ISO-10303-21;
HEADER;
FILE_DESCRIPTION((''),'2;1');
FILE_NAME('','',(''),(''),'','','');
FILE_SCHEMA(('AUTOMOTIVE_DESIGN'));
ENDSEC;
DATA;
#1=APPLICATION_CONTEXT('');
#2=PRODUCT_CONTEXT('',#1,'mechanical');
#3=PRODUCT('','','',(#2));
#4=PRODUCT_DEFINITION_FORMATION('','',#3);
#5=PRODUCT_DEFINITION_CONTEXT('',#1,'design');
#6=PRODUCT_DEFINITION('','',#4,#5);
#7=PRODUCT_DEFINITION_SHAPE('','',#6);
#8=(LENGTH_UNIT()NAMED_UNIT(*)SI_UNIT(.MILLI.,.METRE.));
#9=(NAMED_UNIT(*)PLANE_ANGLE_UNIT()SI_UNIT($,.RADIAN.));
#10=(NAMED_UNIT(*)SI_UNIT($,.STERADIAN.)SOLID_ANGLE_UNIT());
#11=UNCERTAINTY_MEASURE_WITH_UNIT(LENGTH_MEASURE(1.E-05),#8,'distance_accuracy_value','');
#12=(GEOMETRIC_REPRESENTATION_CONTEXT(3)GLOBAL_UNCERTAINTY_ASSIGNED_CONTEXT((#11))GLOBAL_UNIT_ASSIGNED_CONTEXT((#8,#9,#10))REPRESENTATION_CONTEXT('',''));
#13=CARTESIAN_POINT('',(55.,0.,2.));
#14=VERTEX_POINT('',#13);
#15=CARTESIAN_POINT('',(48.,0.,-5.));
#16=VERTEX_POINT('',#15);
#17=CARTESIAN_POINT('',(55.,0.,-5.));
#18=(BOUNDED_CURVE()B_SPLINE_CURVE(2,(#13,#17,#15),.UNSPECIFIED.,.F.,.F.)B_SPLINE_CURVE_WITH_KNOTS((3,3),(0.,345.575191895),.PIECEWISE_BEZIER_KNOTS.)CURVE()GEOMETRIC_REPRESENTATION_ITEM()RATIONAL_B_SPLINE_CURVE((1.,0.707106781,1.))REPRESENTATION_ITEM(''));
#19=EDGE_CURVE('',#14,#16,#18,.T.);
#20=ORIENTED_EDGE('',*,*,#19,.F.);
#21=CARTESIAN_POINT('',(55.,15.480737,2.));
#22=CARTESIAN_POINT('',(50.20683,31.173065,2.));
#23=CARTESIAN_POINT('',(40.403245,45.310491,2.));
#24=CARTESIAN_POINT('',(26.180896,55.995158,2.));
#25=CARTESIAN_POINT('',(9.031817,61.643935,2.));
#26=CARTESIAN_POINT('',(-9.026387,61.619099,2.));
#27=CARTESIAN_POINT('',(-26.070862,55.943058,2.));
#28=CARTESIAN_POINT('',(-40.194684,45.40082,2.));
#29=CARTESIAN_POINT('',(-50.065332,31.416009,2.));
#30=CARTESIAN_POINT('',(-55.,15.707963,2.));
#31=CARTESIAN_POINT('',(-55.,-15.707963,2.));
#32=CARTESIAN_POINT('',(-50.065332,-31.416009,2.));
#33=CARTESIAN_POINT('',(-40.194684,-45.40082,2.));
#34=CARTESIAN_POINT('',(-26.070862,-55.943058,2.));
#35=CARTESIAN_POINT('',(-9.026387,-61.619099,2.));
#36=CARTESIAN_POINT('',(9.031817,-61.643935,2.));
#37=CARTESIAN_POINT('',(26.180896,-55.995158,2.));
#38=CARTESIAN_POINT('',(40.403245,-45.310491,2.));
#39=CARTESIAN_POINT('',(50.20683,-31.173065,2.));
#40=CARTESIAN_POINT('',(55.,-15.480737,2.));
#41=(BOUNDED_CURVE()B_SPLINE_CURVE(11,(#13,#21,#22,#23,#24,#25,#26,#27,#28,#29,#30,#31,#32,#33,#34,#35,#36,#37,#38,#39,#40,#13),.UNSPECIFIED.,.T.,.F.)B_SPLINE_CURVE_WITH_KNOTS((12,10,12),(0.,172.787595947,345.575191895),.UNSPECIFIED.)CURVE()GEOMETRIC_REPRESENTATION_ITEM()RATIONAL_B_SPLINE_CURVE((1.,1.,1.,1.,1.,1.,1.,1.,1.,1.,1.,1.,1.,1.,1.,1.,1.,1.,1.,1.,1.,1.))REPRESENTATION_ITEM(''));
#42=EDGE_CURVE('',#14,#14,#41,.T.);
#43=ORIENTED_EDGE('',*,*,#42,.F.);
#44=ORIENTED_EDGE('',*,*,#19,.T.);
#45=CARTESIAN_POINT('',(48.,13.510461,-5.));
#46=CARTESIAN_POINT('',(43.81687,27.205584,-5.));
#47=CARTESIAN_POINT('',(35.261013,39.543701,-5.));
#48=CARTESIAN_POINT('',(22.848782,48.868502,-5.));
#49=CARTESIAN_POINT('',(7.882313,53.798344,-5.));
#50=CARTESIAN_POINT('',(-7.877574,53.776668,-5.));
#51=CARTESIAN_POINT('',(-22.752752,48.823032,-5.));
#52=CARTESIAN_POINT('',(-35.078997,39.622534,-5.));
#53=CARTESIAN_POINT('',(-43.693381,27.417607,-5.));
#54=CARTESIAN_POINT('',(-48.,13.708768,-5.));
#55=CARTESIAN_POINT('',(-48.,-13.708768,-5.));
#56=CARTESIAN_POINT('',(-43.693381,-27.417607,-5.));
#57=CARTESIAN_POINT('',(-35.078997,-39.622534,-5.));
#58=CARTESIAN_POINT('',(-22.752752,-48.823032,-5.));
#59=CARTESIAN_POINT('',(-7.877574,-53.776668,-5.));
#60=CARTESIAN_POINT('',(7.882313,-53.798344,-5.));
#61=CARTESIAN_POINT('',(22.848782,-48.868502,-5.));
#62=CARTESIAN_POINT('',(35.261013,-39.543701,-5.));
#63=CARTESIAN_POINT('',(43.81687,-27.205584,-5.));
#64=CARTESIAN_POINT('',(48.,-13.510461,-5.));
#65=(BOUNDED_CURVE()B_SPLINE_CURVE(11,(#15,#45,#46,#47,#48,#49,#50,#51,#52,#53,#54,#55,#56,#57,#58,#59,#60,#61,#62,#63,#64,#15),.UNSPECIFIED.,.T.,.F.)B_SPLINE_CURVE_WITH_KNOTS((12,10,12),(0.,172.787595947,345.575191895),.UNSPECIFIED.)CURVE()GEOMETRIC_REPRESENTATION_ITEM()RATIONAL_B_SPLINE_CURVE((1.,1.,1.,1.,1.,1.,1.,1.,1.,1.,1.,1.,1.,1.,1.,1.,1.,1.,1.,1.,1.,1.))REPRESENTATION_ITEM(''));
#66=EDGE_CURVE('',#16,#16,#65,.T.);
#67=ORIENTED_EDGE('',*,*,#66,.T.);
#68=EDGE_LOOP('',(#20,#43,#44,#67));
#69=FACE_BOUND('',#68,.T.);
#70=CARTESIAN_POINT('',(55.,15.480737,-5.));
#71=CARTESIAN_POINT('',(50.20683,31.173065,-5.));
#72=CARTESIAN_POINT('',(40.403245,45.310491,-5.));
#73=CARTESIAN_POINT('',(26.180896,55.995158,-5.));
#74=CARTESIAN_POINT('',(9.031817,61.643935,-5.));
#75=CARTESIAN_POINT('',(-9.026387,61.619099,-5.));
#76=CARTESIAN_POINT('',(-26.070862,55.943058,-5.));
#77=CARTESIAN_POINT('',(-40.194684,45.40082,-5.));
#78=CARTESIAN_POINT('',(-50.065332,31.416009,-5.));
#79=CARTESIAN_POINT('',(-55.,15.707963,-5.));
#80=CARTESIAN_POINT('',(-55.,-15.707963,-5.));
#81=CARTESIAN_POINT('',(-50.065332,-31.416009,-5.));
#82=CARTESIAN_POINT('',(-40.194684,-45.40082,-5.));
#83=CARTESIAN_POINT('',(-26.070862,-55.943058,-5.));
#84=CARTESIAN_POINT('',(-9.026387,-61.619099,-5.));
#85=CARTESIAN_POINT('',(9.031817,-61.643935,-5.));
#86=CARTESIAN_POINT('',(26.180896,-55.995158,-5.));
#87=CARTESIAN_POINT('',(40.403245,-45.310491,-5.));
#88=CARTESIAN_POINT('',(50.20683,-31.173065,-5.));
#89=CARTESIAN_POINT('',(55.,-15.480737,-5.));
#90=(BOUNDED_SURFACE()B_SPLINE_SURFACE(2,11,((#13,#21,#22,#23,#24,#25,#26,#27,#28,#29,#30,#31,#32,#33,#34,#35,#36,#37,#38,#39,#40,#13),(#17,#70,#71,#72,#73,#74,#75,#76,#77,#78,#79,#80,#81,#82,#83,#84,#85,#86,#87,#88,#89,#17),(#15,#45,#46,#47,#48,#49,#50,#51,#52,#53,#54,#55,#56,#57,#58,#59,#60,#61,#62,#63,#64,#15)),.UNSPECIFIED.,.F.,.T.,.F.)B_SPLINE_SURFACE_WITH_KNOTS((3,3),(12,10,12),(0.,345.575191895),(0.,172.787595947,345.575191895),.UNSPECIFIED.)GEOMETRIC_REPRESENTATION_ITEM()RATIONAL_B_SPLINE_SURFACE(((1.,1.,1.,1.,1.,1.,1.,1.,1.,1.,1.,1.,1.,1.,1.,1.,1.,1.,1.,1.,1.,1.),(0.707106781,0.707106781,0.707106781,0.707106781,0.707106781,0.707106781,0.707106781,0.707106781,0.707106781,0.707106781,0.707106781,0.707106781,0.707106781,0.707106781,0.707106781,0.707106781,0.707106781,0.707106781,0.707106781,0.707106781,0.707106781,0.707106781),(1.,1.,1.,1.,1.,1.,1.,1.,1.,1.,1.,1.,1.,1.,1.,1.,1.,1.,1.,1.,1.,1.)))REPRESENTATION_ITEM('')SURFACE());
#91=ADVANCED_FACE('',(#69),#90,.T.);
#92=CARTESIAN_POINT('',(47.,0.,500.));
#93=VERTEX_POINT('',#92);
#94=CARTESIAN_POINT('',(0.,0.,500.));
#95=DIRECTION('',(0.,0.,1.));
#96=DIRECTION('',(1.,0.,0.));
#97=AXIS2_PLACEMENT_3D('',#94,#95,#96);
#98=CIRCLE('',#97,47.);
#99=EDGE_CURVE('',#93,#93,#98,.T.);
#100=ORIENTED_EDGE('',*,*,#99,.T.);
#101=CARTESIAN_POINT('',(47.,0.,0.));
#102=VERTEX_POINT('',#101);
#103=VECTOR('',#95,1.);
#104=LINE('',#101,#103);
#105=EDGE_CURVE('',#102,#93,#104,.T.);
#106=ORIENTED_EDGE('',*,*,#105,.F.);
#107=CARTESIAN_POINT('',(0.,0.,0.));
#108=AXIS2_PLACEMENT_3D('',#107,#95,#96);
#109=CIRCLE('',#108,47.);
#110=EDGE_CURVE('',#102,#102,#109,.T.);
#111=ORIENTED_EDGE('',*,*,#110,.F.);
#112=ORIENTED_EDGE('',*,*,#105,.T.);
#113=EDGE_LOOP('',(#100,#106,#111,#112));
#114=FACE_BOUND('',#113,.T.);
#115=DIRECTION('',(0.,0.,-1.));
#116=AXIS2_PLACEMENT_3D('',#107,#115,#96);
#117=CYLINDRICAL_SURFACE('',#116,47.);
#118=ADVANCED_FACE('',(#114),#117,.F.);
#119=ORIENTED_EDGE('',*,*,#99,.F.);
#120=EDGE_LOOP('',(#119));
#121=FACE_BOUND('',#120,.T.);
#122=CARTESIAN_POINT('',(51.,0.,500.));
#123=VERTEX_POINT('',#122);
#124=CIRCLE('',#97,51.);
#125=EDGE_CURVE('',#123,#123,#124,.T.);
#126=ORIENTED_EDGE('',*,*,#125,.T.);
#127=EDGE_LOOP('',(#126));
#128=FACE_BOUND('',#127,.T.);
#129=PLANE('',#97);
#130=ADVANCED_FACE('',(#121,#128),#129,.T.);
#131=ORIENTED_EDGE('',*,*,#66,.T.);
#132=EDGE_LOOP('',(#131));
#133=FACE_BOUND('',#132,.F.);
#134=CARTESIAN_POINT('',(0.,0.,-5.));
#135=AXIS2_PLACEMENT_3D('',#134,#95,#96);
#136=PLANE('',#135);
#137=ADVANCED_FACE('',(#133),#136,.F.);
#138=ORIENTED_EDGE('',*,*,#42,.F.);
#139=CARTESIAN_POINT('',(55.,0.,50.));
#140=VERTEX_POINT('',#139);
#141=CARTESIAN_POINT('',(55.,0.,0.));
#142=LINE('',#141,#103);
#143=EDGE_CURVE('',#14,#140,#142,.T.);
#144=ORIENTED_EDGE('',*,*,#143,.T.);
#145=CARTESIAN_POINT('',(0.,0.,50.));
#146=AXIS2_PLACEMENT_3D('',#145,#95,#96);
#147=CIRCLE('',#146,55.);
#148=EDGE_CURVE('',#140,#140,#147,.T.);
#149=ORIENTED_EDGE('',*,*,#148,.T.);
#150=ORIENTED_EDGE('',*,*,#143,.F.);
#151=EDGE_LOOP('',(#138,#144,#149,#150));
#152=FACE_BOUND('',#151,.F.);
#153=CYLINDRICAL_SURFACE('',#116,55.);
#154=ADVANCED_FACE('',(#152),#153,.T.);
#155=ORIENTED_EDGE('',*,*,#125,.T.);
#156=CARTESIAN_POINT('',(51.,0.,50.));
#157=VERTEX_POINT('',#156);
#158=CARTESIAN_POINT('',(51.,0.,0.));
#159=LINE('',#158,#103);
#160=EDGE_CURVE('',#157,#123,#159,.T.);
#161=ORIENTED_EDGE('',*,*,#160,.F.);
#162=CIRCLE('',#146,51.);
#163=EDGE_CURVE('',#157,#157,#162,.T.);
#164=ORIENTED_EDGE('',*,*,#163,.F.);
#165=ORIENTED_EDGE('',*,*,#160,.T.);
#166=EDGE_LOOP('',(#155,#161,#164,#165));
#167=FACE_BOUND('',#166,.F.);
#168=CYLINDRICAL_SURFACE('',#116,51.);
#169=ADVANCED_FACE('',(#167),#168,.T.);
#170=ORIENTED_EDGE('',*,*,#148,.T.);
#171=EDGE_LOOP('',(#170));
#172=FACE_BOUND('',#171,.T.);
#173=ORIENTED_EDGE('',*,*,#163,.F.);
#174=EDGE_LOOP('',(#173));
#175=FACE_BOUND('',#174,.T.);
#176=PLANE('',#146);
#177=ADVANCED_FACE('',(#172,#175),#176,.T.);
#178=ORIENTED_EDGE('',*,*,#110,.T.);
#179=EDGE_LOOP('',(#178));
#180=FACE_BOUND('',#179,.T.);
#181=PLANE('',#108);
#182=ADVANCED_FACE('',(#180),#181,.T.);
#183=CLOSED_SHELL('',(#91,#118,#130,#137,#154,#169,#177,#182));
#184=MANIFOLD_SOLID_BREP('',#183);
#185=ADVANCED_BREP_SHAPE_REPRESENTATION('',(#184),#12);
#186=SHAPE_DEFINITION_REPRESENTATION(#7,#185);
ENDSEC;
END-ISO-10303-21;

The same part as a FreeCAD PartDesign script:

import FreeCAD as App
import Part
import Sketcher

V = App.Vector


def edges_at(feature, points):
    """Names of the edges that pass closest to the given points."""
    edges = feature.Shape.Edges
    near = lambda p: min(range(len(edges)), key=lambda i: edges[i].distToShape(Part.Vertex(*p))[0])
    return sorted({f"Edge{near(p) + 1}" for p in points})

doc = App.newDocument("Part")
params = doc.addObject("Spreadsheet::Sheet", "Params")
for row, (alias, value) in enumerate([
    ("sketch1_diameter", "110 mm"),
    ("pad1_length", "5 mm"),
    ("sketch2_diameter", "102 mm"),
    ("sketch2_diameter2", "94 mm"),
    ("pad2_length", "500 mm"),
    ("sketch3_diameter", "110 mm"),
    ("sketch3_diameter2", "102 mm"),
    ("pad3_length", "50 mm"),
    ("fillet_radius", "7 mm"),
], start=1):
    params.set(f"A{row}", alias)
    params.set(f"B{row}", "=" + value)
    params.setAlias(f"B{row}", alias)

body = doc.addObject("PartDesign::Body", "Body")

# Sketch on XY plane
sketch1 = doc.addObject("Sketcher::SketchObject", "Sketch")
body.addObject(sketch1)
sketch1.AttachmentSupport = (doc.XY_Plane, [""])
sketch1.MapMode = "FlatFace"
sketch1.addGeometry(Part.Circle(V(0, 0, 0), V(0, 0, 1), 55), False)
sketch1.addConstraint(Sketcher.Constraint("Coincident", 0, 3, -1, 1))
sketch1.addConstraint(Sketcher.Constraint("Diameter", 0, 110.0))
sketch1.setExpression("Constraints[1]", "Params.sketch1_diameter")
pad1 = doc.addObject("PartDesign::Pad", "Pad")
body.addObject(pad1)
pad1.Profile = sketch1
pad1.setExpression("Length", "Params.pad1_length")
pad1.Reversed = True

# Sketch on XY plane
sketch2 = doc.addObject("Sketcher::SketchObject", "Sketch001")
body.addObject(sketch2)
sketch2.AttachmentSupport = (doc.XY_Plane, [""])
sketch2.MapMode = "FlatFace"
sketch2.addGeometry(Part.Circle(V(0, 0, 0), V(0, 0, 1), 51), False)
sketch2.addGeometry(Part.Circle(V(0, 0, 0), V(0, 0, 1), 47), False)
sketch2.addConstraint(Sketcher.Constraint("Coincident", 0, 3, -1, 1))
sketch2.addConstraint(Sketcher.Constraint("Coincident", 1, 3, -1, 1))
sketch2.addConstraint(Sketcher.Constraint("Diameter", 0, 102.0))
sketch2.addConstraint(Sketcher.Constraint("Diameter", 1, 94.0))
sketch2.setExpression("Constraints[2]", "Params.sketch2_diameter")
sketch2.setExpression("Constraints[3]", "Params.sketch2_diameter2")
pad2 = doc.addObject("PartDesign::Pad", "Pad001")
body.addObject(pad2)
pad2.Profile = sketch2
pad2.setExpression("Length", "Params.pad2_length")

# Sketch on XY plane
sketch3 = doc.addObject("Sketcher::SketchObject", "Sketch002")
body.addObject(sketch3)
sketch3.AttachmentSupport = (doc.XY_Plane, [""])
sketch3.MapMode = "FlatFace"
sketch3.addGeometry(Part.Circle(V(0, 0, 0), V(0, 0, 1), 55), False)
sketch3.addGeometry(Part.Circle(V(0, 0, 0), V(0, 0, 1), 51), False)
sketch3.addConstraint(Sketcher.Constraint("Coincident", 0, 3, -1, 1))
sketch3.addConstraint(Sketcher.Constraint("Coincident", 1, 3, -1, 1))
sketch3.addConstraint(Sketcher.Constraint("Diameter", 0, 110.0))
sketch3.addConstraint(Sketcher.Constraint("Diameter", 1, 102.0))
sketch3.setExpression("Constraints[2]", "Params.sketch3_diameter")
sketch3.setExpression("Constraints[3]", "Params.sketch3_diameter2")
pad3 = doc.addObject("PartDesign::Pad", "Pad002")
body.addObject(pad3)
pad3.Profile = sketch3
pad3.setExpression("Length", "Params.pad3_length")
doc.recompute()

fillet = doc.addObject("PartDesign::Fillet", "Fillet")
body.addObject(fillet)
fillet.Base = (pad3, edges_at(pad3, [(-55, 0, -5)]))
fillet.setExpression("Radius", "Params.fillet_radius")

doc.recompute()
